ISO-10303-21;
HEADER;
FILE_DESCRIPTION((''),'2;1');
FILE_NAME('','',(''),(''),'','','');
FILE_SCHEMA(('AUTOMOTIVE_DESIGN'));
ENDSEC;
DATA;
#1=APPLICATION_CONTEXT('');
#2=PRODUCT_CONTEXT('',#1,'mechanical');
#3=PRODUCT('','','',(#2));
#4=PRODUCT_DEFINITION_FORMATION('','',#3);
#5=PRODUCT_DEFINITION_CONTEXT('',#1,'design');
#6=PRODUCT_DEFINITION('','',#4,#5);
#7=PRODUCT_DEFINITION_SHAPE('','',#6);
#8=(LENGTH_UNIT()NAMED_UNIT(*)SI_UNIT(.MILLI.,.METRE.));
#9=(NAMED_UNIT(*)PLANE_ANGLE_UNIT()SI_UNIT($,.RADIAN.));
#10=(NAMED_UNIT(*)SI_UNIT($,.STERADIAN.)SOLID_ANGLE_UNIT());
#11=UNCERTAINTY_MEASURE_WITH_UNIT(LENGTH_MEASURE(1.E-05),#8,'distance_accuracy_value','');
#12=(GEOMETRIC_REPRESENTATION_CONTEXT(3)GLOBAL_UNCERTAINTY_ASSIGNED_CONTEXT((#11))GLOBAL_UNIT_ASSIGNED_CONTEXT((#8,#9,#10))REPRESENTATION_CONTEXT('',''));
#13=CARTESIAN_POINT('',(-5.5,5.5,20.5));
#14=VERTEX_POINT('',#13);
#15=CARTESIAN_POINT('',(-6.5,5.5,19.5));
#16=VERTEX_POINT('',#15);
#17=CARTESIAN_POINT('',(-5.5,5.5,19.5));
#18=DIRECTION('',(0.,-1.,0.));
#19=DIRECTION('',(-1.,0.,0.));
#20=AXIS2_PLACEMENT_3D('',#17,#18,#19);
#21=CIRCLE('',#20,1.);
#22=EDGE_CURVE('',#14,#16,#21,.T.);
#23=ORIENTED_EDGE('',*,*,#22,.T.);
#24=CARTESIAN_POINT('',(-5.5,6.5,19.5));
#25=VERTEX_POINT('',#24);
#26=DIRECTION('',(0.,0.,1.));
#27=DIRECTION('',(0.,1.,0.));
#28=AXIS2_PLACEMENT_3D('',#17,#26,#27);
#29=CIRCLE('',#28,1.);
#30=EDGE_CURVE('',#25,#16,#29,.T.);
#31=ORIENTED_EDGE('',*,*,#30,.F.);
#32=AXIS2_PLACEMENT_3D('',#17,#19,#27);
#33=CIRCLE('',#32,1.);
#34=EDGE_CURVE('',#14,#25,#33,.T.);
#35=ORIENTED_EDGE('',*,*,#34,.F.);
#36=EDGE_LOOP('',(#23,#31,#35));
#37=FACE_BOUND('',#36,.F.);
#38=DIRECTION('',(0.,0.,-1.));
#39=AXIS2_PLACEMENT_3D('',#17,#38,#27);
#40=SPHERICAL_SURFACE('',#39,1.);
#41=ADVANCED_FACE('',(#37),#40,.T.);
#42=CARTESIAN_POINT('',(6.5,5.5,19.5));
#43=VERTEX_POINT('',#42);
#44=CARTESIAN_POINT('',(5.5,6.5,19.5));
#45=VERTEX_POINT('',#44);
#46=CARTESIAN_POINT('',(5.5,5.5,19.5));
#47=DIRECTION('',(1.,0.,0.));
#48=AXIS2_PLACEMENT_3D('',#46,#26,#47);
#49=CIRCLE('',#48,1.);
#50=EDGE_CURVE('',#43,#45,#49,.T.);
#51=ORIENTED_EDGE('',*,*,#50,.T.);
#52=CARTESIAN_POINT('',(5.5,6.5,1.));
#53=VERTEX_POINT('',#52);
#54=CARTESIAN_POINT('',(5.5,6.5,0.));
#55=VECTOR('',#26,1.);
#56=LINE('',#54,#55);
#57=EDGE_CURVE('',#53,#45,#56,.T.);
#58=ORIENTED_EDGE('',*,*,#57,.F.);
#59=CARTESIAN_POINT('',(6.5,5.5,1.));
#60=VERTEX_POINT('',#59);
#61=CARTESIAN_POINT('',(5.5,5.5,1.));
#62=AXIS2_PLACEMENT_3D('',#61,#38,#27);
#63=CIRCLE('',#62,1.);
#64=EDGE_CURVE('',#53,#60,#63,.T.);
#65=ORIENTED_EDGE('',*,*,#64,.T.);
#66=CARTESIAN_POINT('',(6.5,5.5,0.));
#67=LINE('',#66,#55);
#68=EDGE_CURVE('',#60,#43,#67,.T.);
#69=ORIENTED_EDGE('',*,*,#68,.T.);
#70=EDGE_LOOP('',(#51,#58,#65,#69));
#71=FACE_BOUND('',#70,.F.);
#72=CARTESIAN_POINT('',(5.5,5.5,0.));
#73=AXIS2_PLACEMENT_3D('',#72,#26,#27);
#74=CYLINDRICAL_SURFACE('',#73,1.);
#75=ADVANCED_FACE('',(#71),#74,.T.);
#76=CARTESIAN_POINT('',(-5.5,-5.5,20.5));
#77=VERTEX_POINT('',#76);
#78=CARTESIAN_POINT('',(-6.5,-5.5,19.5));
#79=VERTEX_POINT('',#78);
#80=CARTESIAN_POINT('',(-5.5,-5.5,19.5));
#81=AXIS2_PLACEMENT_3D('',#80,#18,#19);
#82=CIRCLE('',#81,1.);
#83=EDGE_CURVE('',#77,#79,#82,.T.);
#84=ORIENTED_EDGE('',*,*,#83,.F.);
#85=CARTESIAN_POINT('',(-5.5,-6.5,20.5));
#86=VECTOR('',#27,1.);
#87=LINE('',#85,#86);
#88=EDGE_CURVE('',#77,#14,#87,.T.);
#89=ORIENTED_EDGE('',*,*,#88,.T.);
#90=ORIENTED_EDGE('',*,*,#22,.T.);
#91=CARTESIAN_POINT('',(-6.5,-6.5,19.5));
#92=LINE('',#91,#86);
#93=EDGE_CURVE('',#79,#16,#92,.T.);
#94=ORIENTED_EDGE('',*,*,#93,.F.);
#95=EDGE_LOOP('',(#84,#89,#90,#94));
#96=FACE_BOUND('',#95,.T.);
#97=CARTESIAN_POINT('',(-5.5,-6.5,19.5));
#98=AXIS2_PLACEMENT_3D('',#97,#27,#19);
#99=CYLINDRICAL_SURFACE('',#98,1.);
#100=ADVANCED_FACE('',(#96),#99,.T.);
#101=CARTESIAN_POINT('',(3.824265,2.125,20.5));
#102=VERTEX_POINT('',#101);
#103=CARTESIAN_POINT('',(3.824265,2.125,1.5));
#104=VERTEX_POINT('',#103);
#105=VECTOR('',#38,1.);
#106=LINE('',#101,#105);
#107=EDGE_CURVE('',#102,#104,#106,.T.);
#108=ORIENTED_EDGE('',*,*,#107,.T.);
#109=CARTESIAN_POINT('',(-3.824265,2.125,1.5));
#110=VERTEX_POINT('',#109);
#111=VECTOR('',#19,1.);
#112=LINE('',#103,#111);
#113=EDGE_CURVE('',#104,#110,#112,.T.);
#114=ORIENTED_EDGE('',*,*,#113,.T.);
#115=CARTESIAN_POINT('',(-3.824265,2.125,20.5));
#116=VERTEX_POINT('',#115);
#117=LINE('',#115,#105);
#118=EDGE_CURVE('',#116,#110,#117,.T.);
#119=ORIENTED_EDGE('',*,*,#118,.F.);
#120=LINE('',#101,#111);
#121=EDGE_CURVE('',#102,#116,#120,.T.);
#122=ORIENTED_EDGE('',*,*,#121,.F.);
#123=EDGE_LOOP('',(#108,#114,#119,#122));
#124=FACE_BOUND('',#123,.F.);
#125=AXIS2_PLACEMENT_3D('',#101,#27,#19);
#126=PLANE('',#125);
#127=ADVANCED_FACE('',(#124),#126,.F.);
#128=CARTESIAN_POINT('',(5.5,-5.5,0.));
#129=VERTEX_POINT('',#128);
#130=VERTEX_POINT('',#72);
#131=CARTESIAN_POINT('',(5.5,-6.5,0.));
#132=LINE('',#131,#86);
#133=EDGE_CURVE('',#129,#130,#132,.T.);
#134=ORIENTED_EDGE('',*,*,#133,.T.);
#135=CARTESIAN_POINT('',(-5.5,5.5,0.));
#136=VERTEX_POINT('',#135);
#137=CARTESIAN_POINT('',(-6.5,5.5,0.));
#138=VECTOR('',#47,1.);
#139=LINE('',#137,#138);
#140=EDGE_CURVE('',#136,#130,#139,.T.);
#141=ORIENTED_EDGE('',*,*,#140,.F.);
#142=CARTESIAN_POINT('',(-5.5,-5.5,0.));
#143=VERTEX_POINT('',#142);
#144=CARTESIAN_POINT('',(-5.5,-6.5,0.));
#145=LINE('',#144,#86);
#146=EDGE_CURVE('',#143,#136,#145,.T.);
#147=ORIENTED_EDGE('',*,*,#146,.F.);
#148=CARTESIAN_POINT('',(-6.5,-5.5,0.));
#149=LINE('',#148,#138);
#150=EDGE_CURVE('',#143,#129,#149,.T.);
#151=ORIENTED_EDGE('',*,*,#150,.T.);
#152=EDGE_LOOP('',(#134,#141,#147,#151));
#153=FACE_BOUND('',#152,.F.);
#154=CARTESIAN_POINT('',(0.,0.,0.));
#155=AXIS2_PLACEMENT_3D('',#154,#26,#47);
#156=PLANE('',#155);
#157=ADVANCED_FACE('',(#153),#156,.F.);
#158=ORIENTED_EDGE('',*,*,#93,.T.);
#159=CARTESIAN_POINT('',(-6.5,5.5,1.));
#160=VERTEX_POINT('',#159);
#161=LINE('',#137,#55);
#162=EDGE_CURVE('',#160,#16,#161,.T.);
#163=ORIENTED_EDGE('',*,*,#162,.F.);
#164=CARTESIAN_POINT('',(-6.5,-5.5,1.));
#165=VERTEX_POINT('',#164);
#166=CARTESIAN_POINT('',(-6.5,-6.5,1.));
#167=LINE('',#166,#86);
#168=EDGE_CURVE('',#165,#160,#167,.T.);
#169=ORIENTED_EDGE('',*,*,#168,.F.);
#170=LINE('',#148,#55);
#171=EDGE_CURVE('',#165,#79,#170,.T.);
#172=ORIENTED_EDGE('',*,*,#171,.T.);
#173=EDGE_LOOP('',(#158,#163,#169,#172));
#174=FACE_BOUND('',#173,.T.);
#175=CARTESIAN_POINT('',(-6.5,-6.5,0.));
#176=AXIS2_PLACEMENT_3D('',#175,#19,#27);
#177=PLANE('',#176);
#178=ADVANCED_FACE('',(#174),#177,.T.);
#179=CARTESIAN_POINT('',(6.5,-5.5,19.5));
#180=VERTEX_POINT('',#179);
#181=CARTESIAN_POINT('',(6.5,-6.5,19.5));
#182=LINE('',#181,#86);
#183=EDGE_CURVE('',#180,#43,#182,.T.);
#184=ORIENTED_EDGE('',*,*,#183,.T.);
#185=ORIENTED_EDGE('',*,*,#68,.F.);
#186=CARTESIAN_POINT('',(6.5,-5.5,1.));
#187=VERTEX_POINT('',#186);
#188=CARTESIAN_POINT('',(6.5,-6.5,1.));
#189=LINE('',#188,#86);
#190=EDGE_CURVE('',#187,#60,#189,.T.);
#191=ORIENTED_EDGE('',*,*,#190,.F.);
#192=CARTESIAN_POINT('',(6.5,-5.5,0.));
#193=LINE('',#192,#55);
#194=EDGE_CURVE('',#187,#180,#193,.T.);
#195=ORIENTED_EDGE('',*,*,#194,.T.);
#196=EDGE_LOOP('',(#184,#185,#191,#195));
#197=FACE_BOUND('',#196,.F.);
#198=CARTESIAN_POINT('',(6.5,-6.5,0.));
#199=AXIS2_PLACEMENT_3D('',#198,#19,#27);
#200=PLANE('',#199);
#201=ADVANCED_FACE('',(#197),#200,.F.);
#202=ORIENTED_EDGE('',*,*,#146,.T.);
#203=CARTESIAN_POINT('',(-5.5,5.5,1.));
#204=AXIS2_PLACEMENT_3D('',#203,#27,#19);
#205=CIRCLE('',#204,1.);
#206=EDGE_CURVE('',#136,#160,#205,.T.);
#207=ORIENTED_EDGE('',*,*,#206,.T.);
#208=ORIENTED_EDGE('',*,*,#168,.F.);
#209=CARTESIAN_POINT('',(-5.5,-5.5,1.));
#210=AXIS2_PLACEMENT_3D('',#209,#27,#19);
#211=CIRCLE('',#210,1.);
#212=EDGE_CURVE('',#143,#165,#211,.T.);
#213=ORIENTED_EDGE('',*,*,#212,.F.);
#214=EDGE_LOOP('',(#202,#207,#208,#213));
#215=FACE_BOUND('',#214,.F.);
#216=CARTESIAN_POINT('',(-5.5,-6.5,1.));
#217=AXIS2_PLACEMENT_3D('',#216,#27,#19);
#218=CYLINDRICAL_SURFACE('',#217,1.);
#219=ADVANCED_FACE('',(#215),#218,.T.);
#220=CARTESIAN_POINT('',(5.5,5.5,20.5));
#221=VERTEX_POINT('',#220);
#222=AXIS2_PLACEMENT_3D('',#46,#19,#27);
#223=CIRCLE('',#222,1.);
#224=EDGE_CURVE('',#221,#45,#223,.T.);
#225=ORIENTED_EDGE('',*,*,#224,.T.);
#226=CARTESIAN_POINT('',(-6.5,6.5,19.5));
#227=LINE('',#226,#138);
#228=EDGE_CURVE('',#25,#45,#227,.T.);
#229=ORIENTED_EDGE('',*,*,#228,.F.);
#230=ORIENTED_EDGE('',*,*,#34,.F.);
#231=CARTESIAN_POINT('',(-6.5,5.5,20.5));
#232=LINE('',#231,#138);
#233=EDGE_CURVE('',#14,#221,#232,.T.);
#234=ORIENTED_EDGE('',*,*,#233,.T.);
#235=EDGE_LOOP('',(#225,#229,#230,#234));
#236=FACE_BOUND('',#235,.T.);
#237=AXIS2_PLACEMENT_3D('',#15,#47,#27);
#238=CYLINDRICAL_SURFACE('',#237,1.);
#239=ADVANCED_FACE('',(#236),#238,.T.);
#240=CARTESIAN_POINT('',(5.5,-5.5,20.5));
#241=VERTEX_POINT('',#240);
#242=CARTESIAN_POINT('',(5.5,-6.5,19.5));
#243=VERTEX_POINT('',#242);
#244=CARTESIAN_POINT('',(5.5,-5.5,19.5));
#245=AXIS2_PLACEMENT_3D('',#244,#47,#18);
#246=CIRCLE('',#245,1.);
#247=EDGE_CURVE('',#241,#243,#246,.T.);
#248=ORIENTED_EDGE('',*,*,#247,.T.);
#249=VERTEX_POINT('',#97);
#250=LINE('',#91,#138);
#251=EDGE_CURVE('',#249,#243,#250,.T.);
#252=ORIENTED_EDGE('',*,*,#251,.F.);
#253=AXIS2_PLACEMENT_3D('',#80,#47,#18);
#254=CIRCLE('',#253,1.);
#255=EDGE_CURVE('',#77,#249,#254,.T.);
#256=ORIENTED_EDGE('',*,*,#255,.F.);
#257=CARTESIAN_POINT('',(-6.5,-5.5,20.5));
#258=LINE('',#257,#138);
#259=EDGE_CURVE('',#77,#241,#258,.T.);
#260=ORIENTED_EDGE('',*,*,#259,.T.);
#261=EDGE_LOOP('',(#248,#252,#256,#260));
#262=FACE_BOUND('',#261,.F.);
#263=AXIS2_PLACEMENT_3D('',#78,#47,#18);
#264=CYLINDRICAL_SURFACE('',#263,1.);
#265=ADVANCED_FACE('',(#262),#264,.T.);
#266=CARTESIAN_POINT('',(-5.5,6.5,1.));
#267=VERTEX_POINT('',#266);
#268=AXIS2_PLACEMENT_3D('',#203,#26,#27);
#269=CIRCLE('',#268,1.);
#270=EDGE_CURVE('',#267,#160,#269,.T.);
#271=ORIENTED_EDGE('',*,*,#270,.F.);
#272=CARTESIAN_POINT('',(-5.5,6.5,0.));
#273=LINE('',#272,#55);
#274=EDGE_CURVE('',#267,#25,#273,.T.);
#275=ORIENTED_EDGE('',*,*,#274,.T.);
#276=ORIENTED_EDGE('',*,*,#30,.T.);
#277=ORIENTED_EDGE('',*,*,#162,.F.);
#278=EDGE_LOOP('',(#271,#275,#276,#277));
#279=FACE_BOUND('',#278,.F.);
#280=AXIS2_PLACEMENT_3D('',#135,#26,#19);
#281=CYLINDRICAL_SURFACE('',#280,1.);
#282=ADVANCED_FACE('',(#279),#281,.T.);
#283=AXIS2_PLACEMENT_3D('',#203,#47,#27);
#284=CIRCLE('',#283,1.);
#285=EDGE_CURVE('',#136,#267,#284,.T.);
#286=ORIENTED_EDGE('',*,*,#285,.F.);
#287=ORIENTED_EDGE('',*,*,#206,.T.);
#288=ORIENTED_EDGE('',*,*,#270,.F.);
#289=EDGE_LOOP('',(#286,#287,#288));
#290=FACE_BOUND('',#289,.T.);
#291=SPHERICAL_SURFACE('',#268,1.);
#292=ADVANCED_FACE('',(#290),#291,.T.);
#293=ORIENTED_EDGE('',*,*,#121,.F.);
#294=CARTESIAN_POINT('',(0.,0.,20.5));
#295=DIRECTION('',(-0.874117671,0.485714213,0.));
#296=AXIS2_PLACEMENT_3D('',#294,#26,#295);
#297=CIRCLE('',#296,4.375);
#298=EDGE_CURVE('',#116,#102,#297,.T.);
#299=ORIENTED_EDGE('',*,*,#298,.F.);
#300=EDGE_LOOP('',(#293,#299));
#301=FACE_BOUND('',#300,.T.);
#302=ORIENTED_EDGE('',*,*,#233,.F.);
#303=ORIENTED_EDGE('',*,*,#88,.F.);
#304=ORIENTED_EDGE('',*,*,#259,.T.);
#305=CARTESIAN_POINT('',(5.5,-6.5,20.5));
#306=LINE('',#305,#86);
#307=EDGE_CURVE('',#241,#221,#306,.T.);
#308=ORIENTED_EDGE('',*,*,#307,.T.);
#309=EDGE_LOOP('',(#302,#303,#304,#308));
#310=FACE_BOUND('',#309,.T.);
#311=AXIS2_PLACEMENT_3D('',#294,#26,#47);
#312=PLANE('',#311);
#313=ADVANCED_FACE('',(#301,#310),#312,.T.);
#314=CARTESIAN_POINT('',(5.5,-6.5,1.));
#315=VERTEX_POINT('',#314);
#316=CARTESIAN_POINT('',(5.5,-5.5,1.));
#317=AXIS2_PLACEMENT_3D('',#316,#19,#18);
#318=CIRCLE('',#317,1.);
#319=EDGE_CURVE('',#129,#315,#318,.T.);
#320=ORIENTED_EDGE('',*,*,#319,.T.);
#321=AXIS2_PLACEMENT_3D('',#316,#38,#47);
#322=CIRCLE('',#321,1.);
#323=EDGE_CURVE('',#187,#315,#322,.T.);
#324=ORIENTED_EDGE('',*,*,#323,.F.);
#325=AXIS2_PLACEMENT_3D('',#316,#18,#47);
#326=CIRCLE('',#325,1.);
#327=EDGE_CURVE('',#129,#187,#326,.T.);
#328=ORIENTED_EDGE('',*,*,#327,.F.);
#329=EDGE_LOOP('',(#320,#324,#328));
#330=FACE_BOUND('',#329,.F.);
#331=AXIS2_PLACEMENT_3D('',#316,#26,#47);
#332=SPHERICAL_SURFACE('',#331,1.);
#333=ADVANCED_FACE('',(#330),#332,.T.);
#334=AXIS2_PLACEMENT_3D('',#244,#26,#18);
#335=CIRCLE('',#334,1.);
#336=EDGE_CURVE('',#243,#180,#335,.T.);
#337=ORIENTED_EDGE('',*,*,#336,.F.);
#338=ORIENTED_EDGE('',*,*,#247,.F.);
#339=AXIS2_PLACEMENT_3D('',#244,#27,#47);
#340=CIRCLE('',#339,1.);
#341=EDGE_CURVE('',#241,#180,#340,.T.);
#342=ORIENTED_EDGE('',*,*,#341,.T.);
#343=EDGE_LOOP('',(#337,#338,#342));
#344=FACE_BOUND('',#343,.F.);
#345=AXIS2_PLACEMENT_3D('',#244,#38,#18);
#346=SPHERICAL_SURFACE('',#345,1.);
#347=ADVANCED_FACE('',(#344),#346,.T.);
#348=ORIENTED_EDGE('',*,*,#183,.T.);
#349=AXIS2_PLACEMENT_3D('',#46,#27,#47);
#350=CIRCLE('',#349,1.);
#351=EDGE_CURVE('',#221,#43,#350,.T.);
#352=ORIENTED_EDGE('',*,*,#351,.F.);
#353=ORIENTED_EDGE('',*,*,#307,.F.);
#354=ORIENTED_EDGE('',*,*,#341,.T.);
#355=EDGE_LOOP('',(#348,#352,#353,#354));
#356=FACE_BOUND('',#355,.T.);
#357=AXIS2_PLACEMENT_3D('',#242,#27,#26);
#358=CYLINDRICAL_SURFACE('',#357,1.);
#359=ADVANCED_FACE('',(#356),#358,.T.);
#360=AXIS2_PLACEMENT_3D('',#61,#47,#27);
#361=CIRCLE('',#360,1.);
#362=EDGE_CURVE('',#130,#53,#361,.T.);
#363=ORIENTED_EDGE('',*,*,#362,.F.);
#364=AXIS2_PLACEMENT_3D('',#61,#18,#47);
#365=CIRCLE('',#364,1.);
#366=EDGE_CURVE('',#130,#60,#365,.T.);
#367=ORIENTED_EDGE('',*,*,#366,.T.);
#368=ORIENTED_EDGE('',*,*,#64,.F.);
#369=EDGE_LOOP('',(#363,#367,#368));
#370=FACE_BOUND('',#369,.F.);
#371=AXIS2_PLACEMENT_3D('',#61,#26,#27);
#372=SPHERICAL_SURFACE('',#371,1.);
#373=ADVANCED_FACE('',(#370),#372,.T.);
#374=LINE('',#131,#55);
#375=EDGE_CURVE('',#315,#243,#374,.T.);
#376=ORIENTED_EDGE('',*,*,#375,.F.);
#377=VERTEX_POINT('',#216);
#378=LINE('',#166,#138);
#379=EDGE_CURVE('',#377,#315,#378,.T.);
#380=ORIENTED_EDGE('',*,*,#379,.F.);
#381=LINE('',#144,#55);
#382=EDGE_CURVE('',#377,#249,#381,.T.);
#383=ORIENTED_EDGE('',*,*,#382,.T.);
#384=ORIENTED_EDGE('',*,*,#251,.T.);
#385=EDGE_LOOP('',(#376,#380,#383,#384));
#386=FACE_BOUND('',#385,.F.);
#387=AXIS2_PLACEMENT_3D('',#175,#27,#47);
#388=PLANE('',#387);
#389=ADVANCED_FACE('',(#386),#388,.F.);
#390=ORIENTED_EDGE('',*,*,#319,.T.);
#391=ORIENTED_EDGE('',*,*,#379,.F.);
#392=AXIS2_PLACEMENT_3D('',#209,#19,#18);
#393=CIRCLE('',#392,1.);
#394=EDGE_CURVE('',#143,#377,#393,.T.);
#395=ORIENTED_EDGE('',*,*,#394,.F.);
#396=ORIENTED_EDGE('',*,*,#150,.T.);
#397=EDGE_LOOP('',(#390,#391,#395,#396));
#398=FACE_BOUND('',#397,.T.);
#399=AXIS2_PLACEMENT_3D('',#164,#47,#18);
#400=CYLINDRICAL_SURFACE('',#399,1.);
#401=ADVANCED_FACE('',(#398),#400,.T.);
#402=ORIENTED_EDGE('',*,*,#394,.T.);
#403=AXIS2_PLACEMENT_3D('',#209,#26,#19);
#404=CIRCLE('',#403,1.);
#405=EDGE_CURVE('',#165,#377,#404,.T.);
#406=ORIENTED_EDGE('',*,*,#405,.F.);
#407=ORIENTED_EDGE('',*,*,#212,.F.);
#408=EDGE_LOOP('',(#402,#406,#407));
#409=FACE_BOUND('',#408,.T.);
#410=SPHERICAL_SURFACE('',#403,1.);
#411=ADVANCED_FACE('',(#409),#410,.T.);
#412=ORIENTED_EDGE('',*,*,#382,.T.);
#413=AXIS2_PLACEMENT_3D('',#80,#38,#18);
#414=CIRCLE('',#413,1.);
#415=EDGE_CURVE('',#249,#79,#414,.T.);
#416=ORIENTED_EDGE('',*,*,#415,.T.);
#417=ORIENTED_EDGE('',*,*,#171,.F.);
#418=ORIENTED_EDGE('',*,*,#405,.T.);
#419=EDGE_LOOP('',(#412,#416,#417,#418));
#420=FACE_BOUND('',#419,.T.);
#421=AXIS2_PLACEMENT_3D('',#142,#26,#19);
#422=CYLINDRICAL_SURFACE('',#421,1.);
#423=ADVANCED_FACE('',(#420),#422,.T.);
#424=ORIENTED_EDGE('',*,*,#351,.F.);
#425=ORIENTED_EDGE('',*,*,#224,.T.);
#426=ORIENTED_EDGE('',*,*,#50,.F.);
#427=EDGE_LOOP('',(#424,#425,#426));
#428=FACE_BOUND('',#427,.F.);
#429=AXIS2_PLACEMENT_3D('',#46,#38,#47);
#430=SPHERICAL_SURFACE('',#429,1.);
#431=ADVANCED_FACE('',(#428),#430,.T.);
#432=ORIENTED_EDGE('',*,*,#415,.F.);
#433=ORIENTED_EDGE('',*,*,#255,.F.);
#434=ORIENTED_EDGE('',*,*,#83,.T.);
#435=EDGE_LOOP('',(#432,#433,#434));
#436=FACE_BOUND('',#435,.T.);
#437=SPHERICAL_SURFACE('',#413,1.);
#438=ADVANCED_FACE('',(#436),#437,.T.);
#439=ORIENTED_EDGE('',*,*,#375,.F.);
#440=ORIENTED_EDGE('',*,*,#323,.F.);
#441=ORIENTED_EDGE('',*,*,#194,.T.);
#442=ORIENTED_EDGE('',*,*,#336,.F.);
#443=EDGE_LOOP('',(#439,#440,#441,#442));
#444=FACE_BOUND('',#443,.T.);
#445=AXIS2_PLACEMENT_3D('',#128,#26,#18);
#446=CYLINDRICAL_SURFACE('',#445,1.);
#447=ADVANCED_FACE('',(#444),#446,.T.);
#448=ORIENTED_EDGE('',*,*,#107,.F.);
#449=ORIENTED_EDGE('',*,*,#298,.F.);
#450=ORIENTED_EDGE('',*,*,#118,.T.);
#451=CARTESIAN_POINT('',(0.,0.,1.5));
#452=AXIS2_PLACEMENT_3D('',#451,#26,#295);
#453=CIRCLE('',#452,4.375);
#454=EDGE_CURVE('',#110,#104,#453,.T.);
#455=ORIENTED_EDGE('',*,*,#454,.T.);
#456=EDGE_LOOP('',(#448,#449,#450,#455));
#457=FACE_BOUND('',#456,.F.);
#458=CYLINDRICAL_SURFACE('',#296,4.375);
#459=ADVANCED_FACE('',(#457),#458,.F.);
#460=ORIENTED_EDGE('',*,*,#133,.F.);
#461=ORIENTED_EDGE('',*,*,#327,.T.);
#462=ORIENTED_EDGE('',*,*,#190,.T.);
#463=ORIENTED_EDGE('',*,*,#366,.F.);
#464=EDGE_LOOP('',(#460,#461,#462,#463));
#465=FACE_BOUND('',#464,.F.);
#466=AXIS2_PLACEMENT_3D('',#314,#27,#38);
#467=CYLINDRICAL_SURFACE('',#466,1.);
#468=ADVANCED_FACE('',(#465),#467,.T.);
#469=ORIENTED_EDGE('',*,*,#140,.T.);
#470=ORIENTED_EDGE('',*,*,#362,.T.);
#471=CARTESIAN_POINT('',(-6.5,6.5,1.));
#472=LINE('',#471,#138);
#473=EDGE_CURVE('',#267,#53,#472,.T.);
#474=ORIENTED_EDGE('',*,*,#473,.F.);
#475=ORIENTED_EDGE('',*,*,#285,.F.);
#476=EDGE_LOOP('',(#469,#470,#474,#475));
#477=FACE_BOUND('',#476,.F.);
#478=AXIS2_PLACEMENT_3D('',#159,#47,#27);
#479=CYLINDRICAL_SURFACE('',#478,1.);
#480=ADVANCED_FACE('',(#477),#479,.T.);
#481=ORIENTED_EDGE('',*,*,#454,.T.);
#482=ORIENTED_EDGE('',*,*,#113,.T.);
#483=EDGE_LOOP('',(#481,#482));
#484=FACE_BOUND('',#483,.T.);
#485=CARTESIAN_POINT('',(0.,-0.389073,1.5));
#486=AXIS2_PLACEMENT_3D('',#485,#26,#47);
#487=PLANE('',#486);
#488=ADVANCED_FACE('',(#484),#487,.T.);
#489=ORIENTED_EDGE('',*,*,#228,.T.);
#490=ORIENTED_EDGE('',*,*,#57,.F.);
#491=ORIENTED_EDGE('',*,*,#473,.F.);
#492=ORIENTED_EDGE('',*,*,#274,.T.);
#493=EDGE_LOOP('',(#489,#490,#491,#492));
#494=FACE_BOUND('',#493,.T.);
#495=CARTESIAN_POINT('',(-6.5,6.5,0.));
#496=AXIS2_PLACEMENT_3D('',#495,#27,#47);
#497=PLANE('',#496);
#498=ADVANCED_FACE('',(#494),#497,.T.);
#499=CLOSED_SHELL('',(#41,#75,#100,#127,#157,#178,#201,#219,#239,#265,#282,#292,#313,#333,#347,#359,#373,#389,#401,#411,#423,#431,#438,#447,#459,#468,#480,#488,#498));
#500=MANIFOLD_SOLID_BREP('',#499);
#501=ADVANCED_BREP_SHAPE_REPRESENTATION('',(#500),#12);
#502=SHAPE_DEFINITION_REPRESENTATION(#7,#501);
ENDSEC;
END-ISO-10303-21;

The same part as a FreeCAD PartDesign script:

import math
import FreeCAD as App
import Part
import Sketcher
Q = App.Units.Quantity


def edges_at(feature, points):
    """Names of the edges that pass closest to the given points."""
    edges = feature.Shape.Edges
    near = lambda p: min(range(len(edges)), key=lambda i: edges[i].distToShape(Part.Vertex(*p))[0])
    return sorted({f"Edge{near(p) + 1}" for p in points})


def add_polygon(sketch, points):
    """Adds a closed chain of lines whose ends are joined by coincident constraints."""
    first, n = sketch.GeometryCount, len(points)
    for a, b in zip(points, points[1:] + points[:1]):
        sketch.addGeometry(Part.LineSegment(App.Vector(*a, 0), App.Vector(*b, 0)), False)
    for i in range(n):
        sketch.addConstraint(Sketcher.Constraint("Coincident", first + i, 2, first + (i + 1) % n, 1))

doc = App.newDocument("Part")
body = doc.addObject("PartDesign::Body", "Body")

# Sketch on XY plane
sketch1 = body.newObject("Sketcher::SketchObject", "Sketch")
sketch1.AttachmentSupport = (doc.getObject("XY_Plane"), [""])
sketch1.MapMode = "FlatFace"
add_polygon(sketch1, [(-6.5, 6.5), (-6.5, -6.5), (6.5, -6.5), (6.5, 6.5)])  # lines 0-3
sketch1.addConstraint(Sketcher.Constraint("Vertical", 0))
sketch1.addConstraint(Sketcher.Constraint("Horizontal", 1))
sketch1.addConstraint(Sketcher.Constraint("Vertical", 2))
sketch1.addConstraint(Sketcher.Constraint("Horizontal", 3))
sketch1.addConstraint(Sketcher.Constraint("Symmetric", 0, 2, 2, 2, -1, 1))
sketch1.addConstraint(Sketcher.Constraint("Equal", 3, 0))
sketch1.addConstraint(Sketcher.Constraint("DistanceX", 1, 1, 1, 2, Q("13 mm")))
pad1 = body.newObject("PartDesign::Pad", "Pad")
pad1.Profile = sketch1
pad1.Length = 20.5

# Sketch on XY plane
sketch2 = body.newObject("Sketcher::SketchObject", "Sketch001")
sketch2.AttachmentSupport = (doc.getObject("XY_Plane"), [""])
sketch2.MapMode = "FlatFace"
sketch2.AttachmentOffset = App.Placement(App.Vector(0, 0, 20.5), App.Rotation())
sketch2.addGeometry(Part.LineSegment(App.Vector(3.824265, 2.125, 0), App.Vector(-3.824265, 2.125, 0)), False)
sketch2.addGeometry(Part.ArcOfCircle(Part.Circle(App.Vector(0, 0, 0), App.Vector(0, 0, 1), 4.375), math.radians(150.940724), math.radians(389.059276)), False)
sketch2.addConstraint(Sketcher.Constraint("Coincident", 0, 1, 1, 2))
sketch2.addConstraint(Sketcher.Constraint("Coincident", 1, 1, 0, 2))
sketch2.addConstraint(Sketcher.Constraint("Horizontal", 0))
sketch2.addConstraint(Sketcher.Constraint("Coincident", 1, 3, -1, 1))
sketch2.addConstraint(Sketcher.Constraint("Radius", 1, Q("4.375 mm")))
sketch2.addConstraint(Sketcher.Constraint("DistanceY", -1, 1, 0, 1, Q("2.125 mm")))
pocket1 = body.newObject("PartDesign::Pocket", "Pocket")
pocket1.Profile = sketch2
pocket1.Length = 19
doc.recompute()

fillet = body.newObject("PartDesign::Fillet", "Fillet")
fillet.Base = (pocket1, edges_at(pocket1, [
    (-6.5, 6.5, 10.25),
    (-6.5, -6.5, 10.25),
    (6.5, -6.5, 10.25),
    (6.5, 6.5, 10.25),
    (0, 6.5, 0),
    (-6.5, 0, 0),
    (6.5, 0, 0),
    (0, -6.5, 0),
    (0, -6.5, 20.5),
    (6.5, 0, 20.5),
    (0, 6.5, 20.5),
    (-6.5, 0, 20.5),
]))
fillet.Radius = 1

doc.recompute()
